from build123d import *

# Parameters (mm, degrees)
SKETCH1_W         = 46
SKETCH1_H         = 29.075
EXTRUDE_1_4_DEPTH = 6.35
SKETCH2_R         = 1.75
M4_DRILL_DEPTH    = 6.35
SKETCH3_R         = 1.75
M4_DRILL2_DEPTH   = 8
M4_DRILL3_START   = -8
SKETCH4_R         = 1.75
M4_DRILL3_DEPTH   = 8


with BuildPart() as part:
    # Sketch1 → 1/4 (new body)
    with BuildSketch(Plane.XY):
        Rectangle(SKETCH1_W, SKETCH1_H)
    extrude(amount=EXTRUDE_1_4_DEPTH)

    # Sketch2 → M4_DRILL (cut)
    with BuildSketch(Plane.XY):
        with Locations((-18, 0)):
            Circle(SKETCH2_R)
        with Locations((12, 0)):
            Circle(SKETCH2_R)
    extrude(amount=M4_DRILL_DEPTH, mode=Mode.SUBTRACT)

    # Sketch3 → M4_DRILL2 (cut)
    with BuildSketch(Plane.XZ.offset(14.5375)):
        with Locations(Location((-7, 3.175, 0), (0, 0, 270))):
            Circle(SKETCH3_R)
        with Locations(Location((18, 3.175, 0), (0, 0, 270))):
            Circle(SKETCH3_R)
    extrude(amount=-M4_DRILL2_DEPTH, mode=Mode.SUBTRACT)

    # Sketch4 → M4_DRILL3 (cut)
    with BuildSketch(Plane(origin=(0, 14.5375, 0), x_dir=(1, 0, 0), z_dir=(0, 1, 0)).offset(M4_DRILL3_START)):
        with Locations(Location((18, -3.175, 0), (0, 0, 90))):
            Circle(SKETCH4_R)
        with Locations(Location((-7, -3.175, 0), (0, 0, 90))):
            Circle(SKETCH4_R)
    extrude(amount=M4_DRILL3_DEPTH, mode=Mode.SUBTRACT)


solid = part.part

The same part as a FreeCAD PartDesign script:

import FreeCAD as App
import Part
import Sketcher

V = App.Vector
Q = App.Units.Quantity


def add_polygon(sketch, points):
    """Adds a closed chain of lines whose ends are joined by coincident constraints."""
    first, n = sketch.GeometryCount, len(points)
    for a, b in zip(points, points[1:] + points[:1]):
        sketch.addGeometry(Part.LineSegment(App.Vector(*a, 0), App.Vector(*b, 0)), False)
    for i in range(n):
        sketch.addConstraint(Sketcher.Constraint("Coincident", first + i, 2, first + (i + 1) % n, 1))

doc = App.newDocument("Part")
body = doc.addObject("PartDesign::Body", "Body")

# Sketch on XY plane
sketch1 = doc.addObject("Sketcher::SketchObject", "Sketch")
body.addObject(sketch1)
sketch1.AttachmentSupport = (doc.XY_Plane, [""])
sketch1.MapMode = "FlatFace"
add_polygon(sketch1, [(-23, 15), (-23, -15), (23, -15), (23, 15)])  # lines 0-3
sketch1.addConstraint([
    Sketcher.Constraint("Vertical", 0),
    Sketcher.Constraint("Horizontal", 1),
    Sketcher.Constraint("Vertical", 2),
    Sketcher.Constraint("Horizontal", 3),
    Sketcher.Constraint("Symmetric", 0, 2, 2, 2, -1, 1),
    Sketcher.Constraint("DistanceX", 1, 1, 1, 2, Q("46 mm")),
    Sketcher.Constraint("DistanceY", 0, 2, 0, 1, Q("29.075 mm")),
])
pad1 = doc.addObject("PartDesign::Pad", "Pad")
body.addObject(pad1)
pad1.Profile = sketch1
pad1.Length = 6.35

# Sketch on XY plane
sketch2 = doc.addObject("Sketcher::SketchObject", "Sketch001")
body.addObject(sketch2)
sketch2.AttachmentSupport = (doc.XY_Plane, [""])
sketch2.MapMode = "FlatFace"
sketch2.addGeometry([
    Part.Circle(V(-18, 0, 0), V(0, 0, 1), 1.8),
    Part.Circle(V(12, 0, 0), V(0, 0, 1), 1.8),
], False)
sketch2.addConstraint([
    Sketcher.Constraint("Equal", 0, 1),
    Sketcher.Constraint("PointOnObject", 0, 3, -1),
    Sketcher.Constraint("PointOnObject", 1, 3, -1),
    Sketcher.Constraint("Diameter", 0, Q("3.5 mm")),
    Sketcher.Constraint("DistanceX", 0, 3, -1, 1, Q("18 mm")),
    Sketcher.Constraint("DistanceX", -1, 1, 1, 3, Q("12 mm")),
])
pocket1 = doc.addObject("PartDesign::Pocket", "Pocket")
body.addObject(pocket1)
pocket1.Profile = sketch2
pocket1.Length = 6.35
pocket1.Reversed = True

# Sketch on XZ plane
sketch3 = doc.addObject("Sketcher::SketchObject", "Sketch002")
body.addObject(sketch3)
sketch3.AttachmentSupport = (doc.XZ_Plane, [""])
sketch3.MapMode = "FlatFace"
sketch3.AttachmentOffset = App.Placement(V(0, 0, 14.5375), App.Rotation())
sketch3.addGeometry([
    Part.Circle(V(-7, 3.2, 0), V(0, 0, 1), 1.8),
    Part.Circle(V(18, 3.2, 0), V(0, 0, 1), 1.8),
], False)
sketch3.addConstraint([
    Sketcher.Constraint("Equal", 0, 1),
    Sketcher.Constraint("Horizontal", 0, 3, 1, 3),
    Sketcher.Constraint("Diameter", 0, Q("3.5 mm")),
    Sketcher.Constraint("DistanceX", 0, 3, -1, 1, Q("7 mm")),
    Sketcher.Constraint("DistanceX", -1, 1, 1, 3, Q("18 mm")),
    Sketcher.Constraint("DistanceY", -1, 1, 0, 3, Q("3.175 mm")),
])
pocket2 = doc.addObject("PartDesign::Pocket", "Pocket001")
body.addObject(pocket2)
pocket2.Profile = sketch3
pocket2.Length = 8

# Sketch on XZ plane
sketch4 = doc.addObject("Sketcher::SketchObject", "Sketch003")
body.addObject(sketch4)
sketch4.AttachmentSupport = (doc.XZ_Plane, [""])
sketch4.MapMode = "FlatFace"
sketch4.AttachmentOffset = App.Placement(V(0, 0, -6.5375), App.Rotation())
sketch4.addGeometry([
    Part.Circle(V(18, 3.2, 0), V(0, 0, 1), 1.8),
    Part.Circle(V(-7, 3.2, 0), V(0, 0, 1), 1.8),
], False)
sketch4.addConstraint([
    Sketcher.Constraint("Equal", 0, 1),
    Sketcher.Constraint("Horizontal", 0, 3, 1, 3),
    Sketcher.Constraint("Diameter", 0, Q("3.5 mm")),
    Sketcher.Constraint("DistanceX", -1, 1, 0, 3, Q("18 mm")),
    Sketcher.Constraint("DistanceX", 1, 3, -1, 1, Q("7 mm")),
    Sketcher.Constraint("DistanceY", -1, 1, 0, 3, Q("3.175 mm")),
])
pocket3 = doc.addObject("PartDesign::Pocket", "Pocket002")
body.addObject(pocket3)
pocket3.Profile = sketch4
pocket3.Length = 8

doc.recompute()
